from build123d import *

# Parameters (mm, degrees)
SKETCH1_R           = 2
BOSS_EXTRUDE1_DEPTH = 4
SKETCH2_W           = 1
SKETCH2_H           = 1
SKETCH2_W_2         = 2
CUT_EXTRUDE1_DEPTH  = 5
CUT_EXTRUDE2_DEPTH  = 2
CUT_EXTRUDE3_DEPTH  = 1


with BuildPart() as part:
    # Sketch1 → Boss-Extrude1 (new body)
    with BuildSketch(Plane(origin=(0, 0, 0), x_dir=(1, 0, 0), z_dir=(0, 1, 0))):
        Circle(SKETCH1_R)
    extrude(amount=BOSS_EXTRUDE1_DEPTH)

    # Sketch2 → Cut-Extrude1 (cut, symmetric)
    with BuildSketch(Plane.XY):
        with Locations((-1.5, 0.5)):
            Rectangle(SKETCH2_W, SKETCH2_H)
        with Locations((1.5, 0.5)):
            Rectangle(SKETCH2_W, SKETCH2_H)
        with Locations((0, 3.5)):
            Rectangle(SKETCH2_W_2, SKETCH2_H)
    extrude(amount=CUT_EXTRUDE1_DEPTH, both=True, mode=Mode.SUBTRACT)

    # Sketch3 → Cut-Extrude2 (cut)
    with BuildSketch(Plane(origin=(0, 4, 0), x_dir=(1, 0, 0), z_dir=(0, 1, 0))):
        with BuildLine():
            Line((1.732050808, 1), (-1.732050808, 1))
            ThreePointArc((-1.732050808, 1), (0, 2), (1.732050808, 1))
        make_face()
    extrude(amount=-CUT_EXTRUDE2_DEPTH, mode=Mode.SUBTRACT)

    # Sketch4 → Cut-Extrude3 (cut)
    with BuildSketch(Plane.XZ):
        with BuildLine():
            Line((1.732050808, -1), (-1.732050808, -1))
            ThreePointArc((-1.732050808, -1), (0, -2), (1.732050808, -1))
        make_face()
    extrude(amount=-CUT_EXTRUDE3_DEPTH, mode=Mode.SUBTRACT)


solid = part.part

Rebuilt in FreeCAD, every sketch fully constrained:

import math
import FreeCAD as App
import Part
import Sketcher

V = App.Vector
Q = App.Units.Quantity


def add_polygon(sketch, points):
    """Adds a closed chain of lines whose ends are joined by coincident constraints."""
    first, n = sketch.GeometryCount, len(points)
    for a, b in zip(points, points[1:] + points[:1]):
        sketch.addGeometry(Part.LineSegment(App.Vector(*a, 0), App.Vector(*b, 0)), False)
    for i in range(n):
        sketch.addConstraint(Sketcher.Constraint("Coincident", first + i, 2, first + (i + 1) % n, 1))

doc = App.newDocument("Part")
body = doc.addObject("PartDesign::Body", "Body")

# Sketch on XZ plane
sketch1 = body.newObject("Sketcher::SketchObject", "Sketch")
sketch1.AttachmentSupport = (doc.getObject("XZ_Plane"), [""])
sketch1.MapMode = "FlatFace"
sketch1.addGeometry(Part.Circle(V(0, 0, 0), V(0, 0, 1), 2), False)
sketch1.addConstraint([
    Sketcher.Constraint("Coincident", 0, 3, -1, 1),
    Sketcher.Constraint("Diameter", 0, Q("4 mm")),
])
pad1 = body.newObject("PartDesign::Pad", "Pad")
pad1.Profile = sketch1
pad1.Length = 4
pad1.Reversed = True

# Sketch on XY plane
sketch2 = body.newObject("Sketcher::SketchObject", "Sketch001")
sketch2.AttachmentSupport = (doc.getObject("XY_Plane"), [""])
sketch2.MapMode = "FlatFace"
add_polygon(sketch2, [(-2, 1), (-2, 0), (-1, 0), (-1, 1)])  # lines 0-3
add_polygon(sketch2, [(1, 1), (1, 0), (2, 0), (2, 1)])  # lines 4-7
add_polygon(sketch2, [(-1, 4), (-1, 3), (1, 3), (1, 4)])  # lines 8-11
sketch2.addConstraint([
    Sketcher.Constraint("Vertical", 0),
    Sketcher.Constraint("Horizontal", 1),
    Sketcher.Constraint("Vertical", 2),
    Sketcher.Constraint("Horizontal", 3),
    Sketcher.Constraint("Vertical", 4),
    Sketcher.Constraint("Horizontal", 5),
    Sketcher.Constraint("Vertical", 6),
    Sketcher.Constraint("Horizontal", 7),
    Sketcher.Constraint("Vertical", 8),
    Sketcher.Constraint("Horizontal", 9),
    Sketcher.Constraint("Vertical", 10),
    Sketcher.Constraint("Horizontal", 11),
    Sketcher.Constraint("Symmetric", 1, 2, 4, 2, -1, 1),
    Sketcher.Constraint("Symmetric", 0, 2, 5, 2, -2),
    Sketcher.Constraint("Horizontal", 3, 2, 6, 2),
    Sketcher.Constraint("Vertical", 2, 2, 8, 2),
    Sketcher.Constraint("Vertical", 7, 2, 9, 2),
    Sketcher.Constraint("Equal", 7, 0),
    Sketcher.Constraint("Equal", 6, 8),
    Sketcher.Constraint("DistanceX", 1, 1, 1, 2, Q("1 mm")),
    Sketcher.Constraint("DistanceX", 9, 1, 9, 2, Q("2 mm")),
    Sketcher.Constraint("DistanceY", -1, 1, 8, 2, Q("3 mm")),
])
pocket1 = body.newObject("PartDesign::Pocket", "Pocket")
pocket1.Profile = sketch2
pocket1.Length = 10
pocket1.Midplane = True

# Sketch on XZ plane
sketch3 = body.newObject("Sketcher::SketchObject", "Sketch002")
sketch3.AttachmentSupport = (doc.getObject("XZ_Plane"), [""])
sketch3.MapMode = "FlatFace"
sketch3.AttachmentOffset = App.Placement(V(0, 0, -4), App.Rotation())
sketch3.addGeometry([
    Part.LineSegment(V(-1.7, -1, 0), V(1.7, -1, 0)),
    Part.ArcOfCircle(Part.Circle(V(0, 0, 0), V(0, 0, 1), 2), math.radians(-150), math.radians(-30)),
], False)
sketch3.addConstraint([
    Sketcher.Constraint("Coincident", 0, 1, 1, 1),
    Sketcher.Constraint("Coincident", 1, 2, 0, 2),
    Sketcher.Constraint("Horizontal", 0),
    Sketcher.Constraint("Coincident", 1, 3, -1, 1),
    Sketcher.Constraint("Radius", 1, Q("2 mm")),
    Sketcher.Constraint("DistanceY", 0, 1, -1, 1, Q("1 mm")),
])
pocket2 = body.newObject("PartDesign::Pocket", "Pocket001")
pocket2.Profile = sketch3
pocket2.Length = 2
pocket2.Reversed = True

# Sketch on XZ plane
sketch4 = body.newObject("Sketcher::SketchObject", "Sketch003")
sketch4.AttachmentSupport = (doc.getObject("XZ_Plane"), [""])
sketch4.MapMode = "FlatFace"
sketch4.addGeometry([
    Part.LineSegment(V(1.7, -1, 0), V(-1.7, -1, 0)),
    Part.ArcOfCircle(Part.Circle(V(0, 0, 0), V(0, 0, 1), 2), math.radians(-150), math.radians(-30)),
], False)
sketch4.addConstraint([
    Sketcher.Constraint("Coincident", 0, 1, 1, 2),
    Sketcher.Constraint("Coincident", 1, 1, 0, 2),
    Sketcher.Constraint("Horizontal", 0),
    Sketcher.Constraint("Coincident", 1, 3, -1, 1),
    Sketcher.Constraint("Radius", 1, Q("2 mm")),
    Sketcher.Constraint("DistanceY", 0, 1, -1, 1, Q("1 mm")),
])
pocket3 = body.newObject("PartDesign::Pocket", "Pocket002")
pocket3.Profile = sketch4
pocket3.Length = 1

doc.recompute()
